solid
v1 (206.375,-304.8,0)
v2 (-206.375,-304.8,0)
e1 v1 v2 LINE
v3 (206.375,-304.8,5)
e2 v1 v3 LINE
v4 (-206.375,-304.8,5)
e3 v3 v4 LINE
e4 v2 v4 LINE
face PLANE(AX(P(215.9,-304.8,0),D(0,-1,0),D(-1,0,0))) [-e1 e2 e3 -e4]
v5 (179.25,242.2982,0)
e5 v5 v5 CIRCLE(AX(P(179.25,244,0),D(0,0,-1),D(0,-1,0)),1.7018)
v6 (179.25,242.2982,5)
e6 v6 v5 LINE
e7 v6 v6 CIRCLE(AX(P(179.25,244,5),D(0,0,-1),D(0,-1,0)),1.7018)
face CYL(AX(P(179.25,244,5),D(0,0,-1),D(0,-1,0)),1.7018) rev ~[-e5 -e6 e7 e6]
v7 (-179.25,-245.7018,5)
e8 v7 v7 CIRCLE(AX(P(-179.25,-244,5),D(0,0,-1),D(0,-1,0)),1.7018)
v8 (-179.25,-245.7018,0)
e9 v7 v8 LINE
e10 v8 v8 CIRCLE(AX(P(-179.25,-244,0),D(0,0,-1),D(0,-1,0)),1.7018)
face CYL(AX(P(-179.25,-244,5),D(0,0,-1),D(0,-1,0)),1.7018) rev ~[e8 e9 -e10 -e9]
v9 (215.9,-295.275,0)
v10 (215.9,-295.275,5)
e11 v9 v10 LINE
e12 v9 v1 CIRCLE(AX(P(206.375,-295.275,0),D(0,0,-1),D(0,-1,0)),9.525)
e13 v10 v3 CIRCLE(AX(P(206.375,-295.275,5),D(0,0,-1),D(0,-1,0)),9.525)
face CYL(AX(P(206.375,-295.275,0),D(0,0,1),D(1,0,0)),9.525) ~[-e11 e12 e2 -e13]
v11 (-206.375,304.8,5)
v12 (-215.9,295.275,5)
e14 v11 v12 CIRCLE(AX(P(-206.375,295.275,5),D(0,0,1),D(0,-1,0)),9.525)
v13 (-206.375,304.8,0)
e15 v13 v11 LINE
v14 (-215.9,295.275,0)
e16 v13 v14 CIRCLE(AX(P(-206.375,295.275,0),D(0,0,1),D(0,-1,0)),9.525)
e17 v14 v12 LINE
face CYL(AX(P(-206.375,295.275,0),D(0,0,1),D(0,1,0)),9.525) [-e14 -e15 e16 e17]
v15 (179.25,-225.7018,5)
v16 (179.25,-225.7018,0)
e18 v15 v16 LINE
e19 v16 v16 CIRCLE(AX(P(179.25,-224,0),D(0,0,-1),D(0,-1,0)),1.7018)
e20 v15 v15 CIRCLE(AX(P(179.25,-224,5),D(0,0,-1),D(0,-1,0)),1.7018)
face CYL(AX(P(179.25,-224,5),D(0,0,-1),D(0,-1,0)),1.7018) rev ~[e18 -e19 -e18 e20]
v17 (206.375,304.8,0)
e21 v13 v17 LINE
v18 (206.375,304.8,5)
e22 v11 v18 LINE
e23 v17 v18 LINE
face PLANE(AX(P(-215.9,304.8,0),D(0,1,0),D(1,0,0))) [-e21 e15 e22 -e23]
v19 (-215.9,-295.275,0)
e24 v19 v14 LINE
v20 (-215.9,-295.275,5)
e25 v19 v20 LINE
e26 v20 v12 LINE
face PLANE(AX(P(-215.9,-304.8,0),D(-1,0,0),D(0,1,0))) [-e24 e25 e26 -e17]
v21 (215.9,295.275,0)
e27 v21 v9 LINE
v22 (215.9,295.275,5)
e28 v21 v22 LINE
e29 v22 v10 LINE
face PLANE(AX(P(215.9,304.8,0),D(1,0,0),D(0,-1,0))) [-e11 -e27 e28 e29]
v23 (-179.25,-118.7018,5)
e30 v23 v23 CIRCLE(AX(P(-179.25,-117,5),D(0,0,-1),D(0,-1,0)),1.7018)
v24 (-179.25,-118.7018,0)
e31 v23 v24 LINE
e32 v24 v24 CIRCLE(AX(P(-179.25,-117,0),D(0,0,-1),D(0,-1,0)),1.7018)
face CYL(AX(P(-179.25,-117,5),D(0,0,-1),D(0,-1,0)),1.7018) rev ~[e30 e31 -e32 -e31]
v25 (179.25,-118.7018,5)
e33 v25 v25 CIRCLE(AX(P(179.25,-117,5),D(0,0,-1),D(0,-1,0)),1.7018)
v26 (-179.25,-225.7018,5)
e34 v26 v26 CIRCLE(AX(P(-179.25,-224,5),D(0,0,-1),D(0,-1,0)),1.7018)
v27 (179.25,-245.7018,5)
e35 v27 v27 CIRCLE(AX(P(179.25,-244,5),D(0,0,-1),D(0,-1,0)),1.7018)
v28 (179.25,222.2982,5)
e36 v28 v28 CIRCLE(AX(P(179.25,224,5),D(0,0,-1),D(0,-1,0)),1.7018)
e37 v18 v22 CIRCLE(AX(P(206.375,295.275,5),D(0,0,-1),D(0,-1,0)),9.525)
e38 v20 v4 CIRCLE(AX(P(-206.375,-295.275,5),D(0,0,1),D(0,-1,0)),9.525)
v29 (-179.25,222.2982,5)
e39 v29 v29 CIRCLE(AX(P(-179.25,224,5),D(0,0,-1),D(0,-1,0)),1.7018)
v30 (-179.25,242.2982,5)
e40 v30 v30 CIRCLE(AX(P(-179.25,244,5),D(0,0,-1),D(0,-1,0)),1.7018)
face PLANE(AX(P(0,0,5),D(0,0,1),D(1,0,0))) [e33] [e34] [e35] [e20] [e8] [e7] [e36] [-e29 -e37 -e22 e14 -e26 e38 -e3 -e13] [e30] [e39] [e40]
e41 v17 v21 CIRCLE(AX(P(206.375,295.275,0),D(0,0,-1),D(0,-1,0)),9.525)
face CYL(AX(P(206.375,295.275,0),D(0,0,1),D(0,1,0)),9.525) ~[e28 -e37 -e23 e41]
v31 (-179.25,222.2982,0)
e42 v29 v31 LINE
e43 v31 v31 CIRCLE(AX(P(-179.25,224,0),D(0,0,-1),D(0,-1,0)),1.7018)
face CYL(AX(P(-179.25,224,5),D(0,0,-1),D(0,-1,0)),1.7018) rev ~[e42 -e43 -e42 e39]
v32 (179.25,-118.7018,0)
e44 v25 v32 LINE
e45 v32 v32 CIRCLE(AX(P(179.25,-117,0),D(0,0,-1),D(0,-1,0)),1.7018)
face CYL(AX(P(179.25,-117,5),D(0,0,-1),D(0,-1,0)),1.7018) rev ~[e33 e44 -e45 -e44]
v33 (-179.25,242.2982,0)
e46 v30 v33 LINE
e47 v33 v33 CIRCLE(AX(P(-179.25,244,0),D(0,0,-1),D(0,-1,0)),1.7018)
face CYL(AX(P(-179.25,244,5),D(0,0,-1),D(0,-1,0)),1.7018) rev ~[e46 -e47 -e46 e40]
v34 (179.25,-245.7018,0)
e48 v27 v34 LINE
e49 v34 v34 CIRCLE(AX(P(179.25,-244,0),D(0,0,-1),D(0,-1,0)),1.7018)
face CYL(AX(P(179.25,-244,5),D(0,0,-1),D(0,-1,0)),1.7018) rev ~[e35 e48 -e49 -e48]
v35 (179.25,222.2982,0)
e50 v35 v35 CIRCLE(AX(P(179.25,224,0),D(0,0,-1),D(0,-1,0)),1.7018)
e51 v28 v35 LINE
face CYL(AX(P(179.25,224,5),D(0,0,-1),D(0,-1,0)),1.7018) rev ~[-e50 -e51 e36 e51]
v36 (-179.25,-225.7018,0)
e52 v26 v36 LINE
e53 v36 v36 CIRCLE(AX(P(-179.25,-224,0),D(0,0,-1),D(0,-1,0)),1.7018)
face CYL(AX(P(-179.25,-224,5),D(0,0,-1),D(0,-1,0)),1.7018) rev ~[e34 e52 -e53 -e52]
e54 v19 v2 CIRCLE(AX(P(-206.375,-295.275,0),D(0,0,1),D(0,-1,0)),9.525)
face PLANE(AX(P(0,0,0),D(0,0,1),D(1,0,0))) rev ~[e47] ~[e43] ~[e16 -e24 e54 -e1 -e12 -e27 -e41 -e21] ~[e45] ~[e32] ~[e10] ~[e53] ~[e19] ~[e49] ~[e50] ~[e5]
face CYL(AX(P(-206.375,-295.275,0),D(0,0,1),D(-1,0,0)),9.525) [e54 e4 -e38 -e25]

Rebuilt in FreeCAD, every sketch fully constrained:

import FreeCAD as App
import Part
import Sketcher
from FreeCAD import Vector
Q = App.Units.Quantity


def edges_at(feature, points):
    """Names of the edges that pass closest to the given points."""
    edges = feature.Shape.Edges
    near = lambda p: min(range(len(edges)), key=lambda i: edges[i].distToShape(Part.Vertex(*p))[0])
    return sorted({f"Edge{near(p) + 1}" for p in points})

doc = App.newDocument("Part")
body = doc.addObject("PartDesign::Body", "Body")

sketch1 = body.newObject("Sketcher::SketchObject", "Sketch")
sketch1.AttachmentSupport = (doc.getObject("XY_Plane"), [""])
sketch1.MapMode = "FlatFace"
sketch1.addGeometry(Part.LineSegment(Vector(216, 305, 0), Vector(-216, 305, 0)), False)
sketch1.addGeometry(Part.LineSegment(Vector(-216, 305, 0), Vector(-216, -305, 0)), False)
sketch1.addGeometry(Part.LineSegment(Vector(-216, -305, 0), Vector(216, -305, 0)), False)
sketch1.addGeometry(Part.LineSegment(Vector(216, -305, 0), Vector(216, 305, 0)), False)
sketch1.addConstraint(Sketcher.Constraint("Coincident", 0, 2, 1, 1))
sketch1.addConstraint(Sketcher.Constraint("Coincident", 1, 2, 2, 1))
sketch1.addConstraint(Sketcher.Constraint("Coincident", 2, 2, 3, 1))
sketch1.addConstraint(Sketcher.Constraint("Coincident", 3, 2, 0, 1))
sketch1.addConstraint(Sketcher.Constraint("Horizontal", 0))
sketch1.addConstraint(Sketcher.Constraint("Vertical", 1))
sketch1.addConstraint(Sketcher.Constraint("Horizontal", 2))
sketch1.addConstraint(Sketcher.Constraint("Vertical", 3))
sketch1.addConstraint(Sketcher.Constraint("Symmetric", 0, 2, 2, 2, -1, 1))
sketch1.addConstraint(Sketcher.Constraint("DistanceX", 0, 2, 0, 1, Q("17 in")))
sketch1.addConstraint(Sketcher.Constraint("DistanceY", 1, 2, 1, 1, Q("24 in")))
pad1 = body.newObject("PartDesign::Pad", "Pad")
pad1.Profile = sketch1
pad1.Length = 5

sketch2 = body.newObject("Sketcher::SketchObject", "Sketch001")
sketch2.AttachmentSupport = (doc.getObject("XY_Plane"), [""])
sketch2.MapMode = "FlatFace"
sketch2.AttachmentOffset = App.Placement(Vector(0, 0, 5), App.Rotation())
sketch2.addGeometry(Part.Circle(Vector(-179.2, -244, 0), Vector(0, 0, 1), 1.7), False)
sketch2.addGeometry(Part.Circle(Vector(-179.2, -224, 0), Vector(0, 0, 1), 1.7), False)
sketch2.addGeometry(Part.Circle(Vector(-179.2, 224, 0), Vector(0, 0, 1), 1.7), False)
sketch2.addGeometry(Part.Circle(Vector(-179.2, 244, 0), Vector(0, 0, 1), 1.7), False)
sketch2.addGeometry(Part.Circle(Vector(179.2, 224, 0), Vector(0, 0, 1), 1.7), False)
sketch2.addGeometry(Part.Circle(Vector(179.2, 244, 0), Vector(0, 0, 1), 1.7), False)
sketch2.addGeometry(Part.Circle(Vector(179.2, -244, 0), Vector(0, 0, 1), 1.7), False)
sketch2.addGeometry(Part.Circle(Vector(179.2, -224, 0), Vector(0, 0, 1), 1.7), False)
sketch2.addGeometry(Part.Circle(Vector(179.2, -117, 0), Vector(0, 0, 1), 1.7), False)
sketch2.addGeometry(Part.Circle(Vector(-179.2, -117, 0), Vector(0, 0, 1), 1.7), False)
sketch2.addConstraint(Sketcher.Constraint("Equal", 0, 1))
sketch2.addConstraint(Sketcher.Constraint("Equal", 1, 2))
sketch2.addConstraint(Sketcher.Constraint("Equal", 2, 3))
sketch2.addConstraint(Sketcher.Constraint("Equal", 3, 4))
sketch2.addConstraint(Sketcher.Constraint("Equal", 4, 5))
sketch2.addConstraint(Sketcher.Constraint("Equal", 5, 6))
sketch2.addConstraint(Sketcher.Constraint("Equal", 6, 7))
sketch2.addConstraint(Sketcher.Constraint("Equal", 7, 8))
sketch2.addConstraint(Sketcher.Constraint("Equal", 8, 9))
sketch2.addConstraint(Sketcher.Constraint("Symmetric", 1, 3, 4, 3, -1, 1))
sketch2.addConstraint(Sketcher.Constraint("Symmetric", 0, 3, 5, 3, -1, 1))
sketch2.addConstraint(Sketcher.Constraint("Symmetric", 3, 3, 6, 3, -1, 1))
sketch2.addConstraint(Sketcher.Constraint("Symmetric", 2, 3, 7, 3, -1, 1))
sketch2.addConstraint(Sketcher.Constraint("Symmetric", 2, 3, 4, 3, -2))
sketch2.addConstraint(Sketcher.Constraint("Symmetric", 3, 3, 5, 3, -2))
sketch2.addConstraint(Sketcher.Constraint("Symmetric", 8, 3, 9, 3, -2))
sketch2.addConstraint(Sketcher.Constraint("Vertical", 0, 3, 1, 3))
sketch2.addConstraint(Sketcher.Constraint("Vertical", 7, 3, 8, 3))
sketch2.addConstraint(Sketcher.Constraint("Diameter", 0, Q("0.134 in")))
sketch2.addConstraint(Sketcher.Constraint("DistanceY", 6, 3, 8, 3, Q("5 in")))
sketch2.addConstraint(Sketcher.Constraint("DistanceY", 0, 3, -1, 1, Q("9.6063 in")))
sketch2.addConstraint(Sketcher.Constraint("DistanceY", 1, 3, -1, 1, Q("8.8189 in")))
sketch2.addConstraint(Sketcher.Constraint("DistanceX", 0, 3, -1, 1, Q("179.25 mm")))
doc.recompute()
hole = body.newObject("PartDesign::Hole", "Hole")
hole.Profile = sketch2
hole.ThreadType = "None"
hole.Diameter = Q("0.134 in")
hole.DepthType = "ThroughAll"
doc.recompute()

fillet = body.newObject("PartDesign::Fillet", "Fillet")
fillet.Base = (hole, edges_at(hole, [
    (215.9, -304.8, 2.5),
    (-215.9, -304.8, 2.5),
    (215.9, 304.8, 2.5),
    (-215.9, 304.8, 2.5),
]))
fillet.Radius = Q("0.375 in")

doc.recompute()
